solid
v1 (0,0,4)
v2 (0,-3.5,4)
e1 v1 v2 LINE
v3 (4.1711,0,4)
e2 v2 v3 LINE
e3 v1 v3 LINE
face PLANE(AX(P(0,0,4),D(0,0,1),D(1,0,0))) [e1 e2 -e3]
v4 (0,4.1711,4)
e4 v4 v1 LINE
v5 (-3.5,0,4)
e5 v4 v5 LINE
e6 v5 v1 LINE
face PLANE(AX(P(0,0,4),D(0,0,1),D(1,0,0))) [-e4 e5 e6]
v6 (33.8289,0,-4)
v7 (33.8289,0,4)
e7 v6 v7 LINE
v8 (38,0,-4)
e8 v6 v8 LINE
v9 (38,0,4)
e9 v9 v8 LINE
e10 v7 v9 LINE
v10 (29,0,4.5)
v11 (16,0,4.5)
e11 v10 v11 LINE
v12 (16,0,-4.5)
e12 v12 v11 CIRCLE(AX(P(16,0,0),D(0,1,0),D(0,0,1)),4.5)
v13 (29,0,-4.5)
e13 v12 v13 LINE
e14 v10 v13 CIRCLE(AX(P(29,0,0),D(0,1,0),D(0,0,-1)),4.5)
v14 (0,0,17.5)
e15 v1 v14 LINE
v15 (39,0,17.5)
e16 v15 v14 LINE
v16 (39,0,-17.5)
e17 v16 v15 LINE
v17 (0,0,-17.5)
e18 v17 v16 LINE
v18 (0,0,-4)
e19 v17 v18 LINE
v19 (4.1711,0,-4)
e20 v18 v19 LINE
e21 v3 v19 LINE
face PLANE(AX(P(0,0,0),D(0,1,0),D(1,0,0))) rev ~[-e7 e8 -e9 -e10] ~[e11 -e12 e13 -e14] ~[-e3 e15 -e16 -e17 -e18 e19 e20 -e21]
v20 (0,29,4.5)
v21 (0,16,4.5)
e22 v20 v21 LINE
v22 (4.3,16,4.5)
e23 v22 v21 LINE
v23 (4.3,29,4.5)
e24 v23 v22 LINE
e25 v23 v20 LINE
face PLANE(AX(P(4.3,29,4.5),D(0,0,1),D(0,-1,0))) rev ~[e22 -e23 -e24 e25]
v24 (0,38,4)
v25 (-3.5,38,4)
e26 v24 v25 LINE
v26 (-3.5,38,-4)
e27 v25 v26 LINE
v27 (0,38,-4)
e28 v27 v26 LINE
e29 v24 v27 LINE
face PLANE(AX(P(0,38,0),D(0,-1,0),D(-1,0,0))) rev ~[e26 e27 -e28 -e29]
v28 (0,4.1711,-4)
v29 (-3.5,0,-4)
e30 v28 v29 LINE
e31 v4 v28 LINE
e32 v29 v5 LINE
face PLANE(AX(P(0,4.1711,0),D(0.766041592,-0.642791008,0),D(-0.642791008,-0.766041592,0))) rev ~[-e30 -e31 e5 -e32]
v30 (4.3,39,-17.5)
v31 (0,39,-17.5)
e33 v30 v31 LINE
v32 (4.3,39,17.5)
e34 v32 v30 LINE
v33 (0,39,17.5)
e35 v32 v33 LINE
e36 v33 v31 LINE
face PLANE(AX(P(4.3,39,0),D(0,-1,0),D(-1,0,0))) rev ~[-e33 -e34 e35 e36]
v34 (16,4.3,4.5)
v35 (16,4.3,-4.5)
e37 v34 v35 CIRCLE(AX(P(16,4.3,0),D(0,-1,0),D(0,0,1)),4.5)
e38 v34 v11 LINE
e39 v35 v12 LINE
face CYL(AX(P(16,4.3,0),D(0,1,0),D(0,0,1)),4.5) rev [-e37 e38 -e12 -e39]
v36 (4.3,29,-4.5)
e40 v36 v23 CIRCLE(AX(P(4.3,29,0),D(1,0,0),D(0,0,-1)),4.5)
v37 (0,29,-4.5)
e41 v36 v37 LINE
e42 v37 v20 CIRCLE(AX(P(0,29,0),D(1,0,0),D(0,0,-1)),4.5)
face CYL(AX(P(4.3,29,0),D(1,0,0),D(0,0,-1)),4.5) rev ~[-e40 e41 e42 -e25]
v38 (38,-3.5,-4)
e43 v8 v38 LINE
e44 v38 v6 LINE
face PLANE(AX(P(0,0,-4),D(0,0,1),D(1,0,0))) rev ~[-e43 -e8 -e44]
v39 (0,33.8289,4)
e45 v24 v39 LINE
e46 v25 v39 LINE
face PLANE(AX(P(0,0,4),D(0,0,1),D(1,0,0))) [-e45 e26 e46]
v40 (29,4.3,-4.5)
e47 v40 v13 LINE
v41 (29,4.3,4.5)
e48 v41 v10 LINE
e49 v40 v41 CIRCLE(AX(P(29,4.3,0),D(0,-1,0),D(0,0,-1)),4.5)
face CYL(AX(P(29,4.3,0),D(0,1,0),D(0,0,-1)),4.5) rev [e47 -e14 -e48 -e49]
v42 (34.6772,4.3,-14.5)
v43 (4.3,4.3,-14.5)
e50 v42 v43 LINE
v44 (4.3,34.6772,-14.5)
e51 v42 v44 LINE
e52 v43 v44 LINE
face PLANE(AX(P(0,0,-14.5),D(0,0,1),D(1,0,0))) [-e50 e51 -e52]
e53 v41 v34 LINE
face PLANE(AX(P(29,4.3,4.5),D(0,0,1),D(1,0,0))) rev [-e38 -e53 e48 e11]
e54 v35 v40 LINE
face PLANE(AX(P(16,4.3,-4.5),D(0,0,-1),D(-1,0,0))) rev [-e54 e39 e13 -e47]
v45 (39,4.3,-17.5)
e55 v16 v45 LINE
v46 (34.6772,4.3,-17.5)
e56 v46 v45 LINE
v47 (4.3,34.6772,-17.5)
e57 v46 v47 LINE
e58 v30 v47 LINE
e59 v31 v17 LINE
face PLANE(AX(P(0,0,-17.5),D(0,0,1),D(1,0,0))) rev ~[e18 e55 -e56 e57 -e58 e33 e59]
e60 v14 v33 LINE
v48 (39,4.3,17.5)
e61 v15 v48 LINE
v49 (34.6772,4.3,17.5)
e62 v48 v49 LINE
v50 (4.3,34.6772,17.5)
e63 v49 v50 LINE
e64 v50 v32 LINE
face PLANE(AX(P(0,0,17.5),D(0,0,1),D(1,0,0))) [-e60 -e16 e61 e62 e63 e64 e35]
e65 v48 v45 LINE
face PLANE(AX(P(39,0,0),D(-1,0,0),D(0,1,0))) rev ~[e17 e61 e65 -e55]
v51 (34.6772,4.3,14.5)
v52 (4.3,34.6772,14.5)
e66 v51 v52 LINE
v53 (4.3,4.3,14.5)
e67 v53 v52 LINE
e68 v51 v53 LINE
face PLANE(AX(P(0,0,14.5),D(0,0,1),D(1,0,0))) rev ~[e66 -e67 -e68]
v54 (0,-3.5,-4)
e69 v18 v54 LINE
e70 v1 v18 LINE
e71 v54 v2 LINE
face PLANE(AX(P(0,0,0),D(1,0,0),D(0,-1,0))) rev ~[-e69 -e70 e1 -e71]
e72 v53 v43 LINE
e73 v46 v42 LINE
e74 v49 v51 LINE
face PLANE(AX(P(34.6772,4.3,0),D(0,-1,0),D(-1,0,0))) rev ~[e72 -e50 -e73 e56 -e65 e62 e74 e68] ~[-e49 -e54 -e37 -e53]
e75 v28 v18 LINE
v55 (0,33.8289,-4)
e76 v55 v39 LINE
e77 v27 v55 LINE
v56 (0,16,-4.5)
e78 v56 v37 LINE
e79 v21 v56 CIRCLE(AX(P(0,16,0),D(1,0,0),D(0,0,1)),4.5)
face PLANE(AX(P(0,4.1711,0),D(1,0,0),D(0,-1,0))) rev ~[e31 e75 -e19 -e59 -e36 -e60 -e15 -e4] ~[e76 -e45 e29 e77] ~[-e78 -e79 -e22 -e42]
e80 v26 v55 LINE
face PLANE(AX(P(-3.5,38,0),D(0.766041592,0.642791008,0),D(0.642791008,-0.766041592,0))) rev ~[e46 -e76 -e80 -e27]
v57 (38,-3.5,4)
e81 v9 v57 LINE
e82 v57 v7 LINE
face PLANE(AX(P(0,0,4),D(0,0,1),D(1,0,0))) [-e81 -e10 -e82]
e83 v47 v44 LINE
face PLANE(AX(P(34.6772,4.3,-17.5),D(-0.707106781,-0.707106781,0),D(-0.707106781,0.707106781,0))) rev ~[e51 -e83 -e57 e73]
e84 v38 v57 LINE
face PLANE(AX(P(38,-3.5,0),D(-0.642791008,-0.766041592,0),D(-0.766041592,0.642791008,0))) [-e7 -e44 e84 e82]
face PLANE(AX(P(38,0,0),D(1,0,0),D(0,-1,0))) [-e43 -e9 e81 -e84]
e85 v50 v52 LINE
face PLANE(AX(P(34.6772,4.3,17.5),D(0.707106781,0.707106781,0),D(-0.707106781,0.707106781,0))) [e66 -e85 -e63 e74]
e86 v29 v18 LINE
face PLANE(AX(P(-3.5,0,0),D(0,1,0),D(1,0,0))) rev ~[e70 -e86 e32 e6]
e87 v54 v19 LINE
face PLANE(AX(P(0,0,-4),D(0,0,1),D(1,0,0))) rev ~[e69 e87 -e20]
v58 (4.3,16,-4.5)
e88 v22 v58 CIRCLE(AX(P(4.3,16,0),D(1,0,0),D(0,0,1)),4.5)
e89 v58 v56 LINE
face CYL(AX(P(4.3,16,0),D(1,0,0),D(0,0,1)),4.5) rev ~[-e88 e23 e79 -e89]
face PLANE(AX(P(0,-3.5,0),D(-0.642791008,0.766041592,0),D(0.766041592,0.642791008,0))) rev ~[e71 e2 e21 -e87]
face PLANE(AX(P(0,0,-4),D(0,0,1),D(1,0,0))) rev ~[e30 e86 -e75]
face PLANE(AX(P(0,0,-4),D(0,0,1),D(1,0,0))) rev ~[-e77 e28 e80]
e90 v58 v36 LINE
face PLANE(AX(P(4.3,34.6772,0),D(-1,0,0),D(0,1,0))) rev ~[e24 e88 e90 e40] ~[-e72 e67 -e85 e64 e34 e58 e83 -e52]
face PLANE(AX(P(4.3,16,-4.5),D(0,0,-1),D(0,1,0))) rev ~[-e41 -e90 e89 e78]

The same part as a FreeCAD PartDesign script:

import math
import FreeCAD as App
import Part
import Sketcher
Q = App.Units.Quantity

doc = App.newDocument("Part")
body = doc.addObject("PartDesign::Body", "Body")

# Sketch on XY plane
sketch1 = body.newObject("Sketcher::SketchObject", "Sketch")
sketch1.AttachmentSupport = (doc.getObject("XY_Plane"), [""])
sketch1.MapMode = "FlatFace"
sketch1.addGeometry(Part.LineSegment(App.Vector(0, 39, 0), App.Vector(0, 0, 0)), False)
sketch1.addGeometry(Part.LineSegment(App.Vector(0, 0, 0), App.Vector(39, 0, 0)), False)
sketch1.addGeometry(Part.LineSegment(App.Vector(39, 0, 0), App.Vector(39, 4.3, 0)), False)
sketch1.addGeometry(Part.LineSegment(App.Vector(39, 4.3, 0), App.Vector(4.3, 4.3, 0)), False)
sketch1.addGeometry(Part.LineSegment(App.Vector(4.3, 4.3, 0), App.Vector(4.3, 39, 0)), False)
sketch1.addGeometry(Part.LineSegment(App.Vector(4.3, 39, 0), App.Vector(0, 39, 0)), False)
sketch1.addConstraint(Sketcher.Constraint("Coincident", 0, 2, 1, 1))
sketch1.addConstraint(Sketcher.Constraint("Coincident", 1, 2, 2, 1))
sketch1.addConstraint(Sketcher.Constraint("Coincident", 2, 2, 3, 1))
sketch1.addConstraint(Sketcher.Constraint("Coincident", 3, 2, 4, 1))
sketch1.addConstraint(Sketcher.Constraint("Coincident", 4, 2, 5, 1))
sketch1.addConstraint(Sketcher.Constraint("Coincident", 5, 2, 0, 1))
sketch1.addConstraint(Sketcher.Constraint("Vertical", 0))
sketch1.addConstraint(Sketcher.Constraint("Horizontal", 1))
sketch1.addConstraint(Sketcher.Constraint("Vertical", 2))
sketch1.addConstraint(Sketcher.Constraint("Horizontal", 3))
sketch1.addConstraint(Sketcher.Constraint("Vertical", 4))
sketch1.addConstraint(Sketcher.Constraint("Horizontal", 5))
sketch1.addConstraint(Sketcher.Constraint("Coincident", 0, 2, -1, 1))
sketch1.addConstraint(Sketcher.Constraint("Equal", 1, 0))
sketch1.addConstraint(Sketcher.Constraint("Equal", 5, 2))
sketch1.addConstraint(Sketcher.Constraint("DistanceX", 1, 1, 1, 2, Q("39 mm")))
sketch1.addConstraint(Sketcher.Constraint("DistanceX", 5, 2, 5, 1, Q("4.3 mm")))
pad1 = body.newObject("PartDesign::Pad", "Pad")
pad1.Profile = sketch1
pad1.Length = 35
pad1.Midplane = True

# Sketch on XY plane
sketch2 = body.newObject("Sketcher::SketchObject", "Sketch001")
sketch2.AttachmentSupport = (doc.getObject("XY_Plane"), [""])
sketch2.MapMode = "FlatFace"
sketch2.addGeometry(Part.LineSegment(App.Vector(0, 4.1711, 0), App.Vector(-3.5, 0, 0)), False)
sketch2.addGeometry(Part.LineSegment(App.Vector(-3.5, 0, 0), App.Vector(0, 0, 0)), False)
sketch2.addGeometry(Part.LineSegment(App.Vector(0, 0, 0), App.Vector(0, 4.1711, 0)), False)
sketch2.addGeometry(Part.LineSegment(App.Vector(4.1711, 0, 0), App.Vector(0, 0, 0)), False)
sketch2.addGeometry(Part.LineSegment(App.Vector(0, 0, 0), App.Vector(0, -3.5, 0)), False)
sketch2.addGeometry(Part.LineSegment(App.Vector(0, -3.5, 0), App.Vector(4.1711, 0, 0)), False)
sketch2.addGeometry(Part.LineSegment(App.Vector(-3.5, 38, 0), App.Vector(0, 33.8289, 0)), False)
sketch2.addGeometry(Part.LineSegment(App.Vector(0, 33.8289, 0), App.Vector(0, 38, 0)), False)
sketch2.addGeometry(Part.LineSegment(App.Vector(0, 38, 0), App.Vector(-3.5, 38, 0)), False)
sketch2.addGeometry(Part.LineSegment(App.Vector(38, 0, 0), App.Vector(33.8289, 0, 0)), False)
sketch2.addGeometry(Part.LineSegment(App.Vector(33.8289, 0, 0), App.Vector(38, -3.5, 0)), False)
sketch2.addGeometry(Part.LineSegment(App.Vector(38, -3.5, 0), App.Vector(38, 0, 0)), False)
sketch2.addConstraint(Sketcher.Constraint("Coincident", 0, 2, 1, 1))
sketch2.addConstraint(Sketcher.Constraint("Coincident", 1, 2, 2, 1))
sketch2.addConstraint(Sketcher.Constraint("Coincident", 2, 2, 0, 1))
sketch2.addConstraint(Sketcher.Constraint("Coincident", 3, 2, 4, 1))
sketch2.addConstraint(Sketcher.Constraint("Coincident", 4, 2, 5, 1))
sketch2.addConstraint(Sketcher.Constraint("Coincident", 5, 2, 3, 1))
sketch2.addConstraint(Sketcher.Constraint("Coincident", 6, 2, 7, 1))
sketch2.addConstraint(Sketcher.Constraint("Coincident", 7, 2, 8, 1))
sketch2.addConstraint(Sketcher.Constraint("Coincident", 8, 2, 6, 1))
sketch2.addConstraint(Sketcher.Constraint("Coincident", 9, 2, 10, 1))
sketch2.addConstraint(Sketcher.Constraint("Coincident", 10, 2, 11, 1))
sketch2.addConstraint(Sketcher.Constraint("Coincident", 11, 2, 9, 1))
sketch2.addConstraint(Sketcher.Constraint("Horizontal", 1))
sketch2.addConstraint(Sketcher.Constraint("Vertical", 2))
sketch2.addConstraint(Sketcher.Constraint("Horizontal", 3))
sketch2.addConstraint(Sketcher.Constraint("Vertical", 4))
sketch2.addConstraint(Sketcher.Constraint("Vertical", 7))
sketch2.addConstraint(Sketcher.Constraint("Horizontal", 8))
sketch2.addConstraint(Sketcher.Constraint("Horizontal", 9))
sketch2.addConstraint(Sketcher.Constraint("Vertical", 11))
sketch2.addConstraint(Sketcher.Constraint("Coincident", 1, 2, -1, 1))
sketch2.addConstraint(Sketcher.Constraint("Coincident", 3, 2, -1, 1))
sketch2.addConstraint(Sketcher.Constraint("PointOnObject", 6, 2, -2))
sketch2.addConstraint(Sketcher.Constraint("PointOnObject", 9, 2, -1))
sketch2.addConstraint(Sketcher.Constraint("Perpendicular", 5, 6))
sketch2.addConstraint(Sketcher.Constraint("Perpendicular", 0, 10))
sketch2.addConstraint(Sketcher.Constraint("Horizontal", 4, 2, 10, 2))
sketch2.addConstraint(Sketcher.Constraint("Vertical", 0, 2, 8, 2))
sketch2.addConstraint(Sketcher.Constraint("Equal", 3, 9))
sketch2.addConstraint(Sketcher.Constraint("Equal", 9, 2))
sketch2.addConstraint(Sketcher.Constraint("Angle", 5, Q("40.0003 deg")))
sketch2.addConstraint(Sketcher.Constraint("DistanceX", 1, 1, 1, 2, Q("3.5 mm")))
sketch2.addConstraint(Sketcher.Constraint("DistanceY", -1, 1, 7, 2, Q("38 mm")))
sketch2.addConstraint(Sketcher.Constraint("DistanceX", -1, 1, 10, 2, Q("38 mm")))
pad2 = body.newObject("PartDesign::Pad", "Pad001")
pad2.Profile = sketch2
pad2.Length = 8
pad2.Midplane = True

# Sketch on XY plane
sketch3 = body.newObject("Sketcher::SketchObject", "Sketch002")
sketch3.AttachmentSupport = (doc.getObject("XY_Plane"), [""])
sketch3.MapMode = "FlatFace"
sketch3.AttachmentOffset = App.Placement(App.Vector(0, 0, 17.5), App.Rotation())
sketch3.addGeometry(Part.LineSegment(App.Vector(34.6772, 4.3, 0), App.Vector(4.3, 34.6772, 0)), False)
sketch3.addGeometry(Part.LineSegment(App.Vector(4.3, 34.6772, 0), App.Vector(4.3, 4.3, 0)), False)
sketch3.addGeometry(Part.LineSegment(App.Vector(4.3, 4.3, 0), App.Vector(34.6772, 4.3, 0)), False)
sketch3.addConstraint(Sketcher.Constraint("Coincident", 0, 2, 1, 1))
sketch3.addConstraint(Sketcher.Constraint("Coincident", 1, 2, 2, 1))
sketch3.addConstraint(Sketcher.Constraint("Coincident", 2, 2, 0, 1))
sketch3.addConstraint(Sketcher.Constraint("Vertical", 1))
sketch3.addConstraint(Sketcher.Constraint("Horizontal", 2))
sketch3.addConstraint(Sketcher.Constraint("Equal", 2, 1))
sketch3.addConstraint(Sketcher.Constraint("DistanceX", -1, 1, 0, 2, Q("4.3 mm")))
sketch3.addConstraint(Sketcher.Constraint("DistanceY", -1, 1, 1, 2, Q("4.3 mm")))
sketch3.addConstraint(Sketcher.Constraint("DistanceX", 2, 1, 2, 2, Q("30.3772 mm")))
pad3 = body.newObject("PartDesign::Pad", "Pad002")
pad3.Profile = sketch3
pad3.Length = 3
pad3.Reversed = True

# Sketch on XY plane
sketch4 = body.newObject("Sketcher::SketchObject", "Sketch003")
sketch4.AttachmentSupport = (doc.getObject("XY_Plane"), [""])
sketch4.MapMode = "FlatFace"
sketch4.AttachmentOffset = App.Placement(App.Vector(0, 0, -17.5), App.Rotation())
sketch4.addGeometry(Part.LineSegment(App.Vector(34.6772, 4.3, 0), App.Vector(4.3, 34.6772, 0)), False)
sketch4.addGeometry(Part.LineSegment(App.Vector(4.3, 34.6772, 0), App.Vector(4.3, 4.3, 0)), False)
sketch4.addGeometry(Part.LineSegment(App.Vector(4.3, 4.3, 0), App.Vector(34.6772, 4.3, 0)), False)
sketch4.addConstraint(Sketcher.Constraint("Coincident", 0, 2, 1, 1))
sketch4.addConstraint(Sketcher.Constraint("Coincident", 1, 2, 2, 1))
sketch4.addConstraint(Sketcher.Constraint("Coincident", 2, 2, 0, 1))
sketch4.addConstraint(Sketcher.Constraint("Vertical", 1))
sketch4.addConstraint(Sketcher.Constraint("Horizontal", 2))
sketch4.addConstraint(Sketcher.Constraint("Equal", 2, 1))
sketch4.addConstraint(Sketcher.Constraint("DistanceX", -1, 1, 0, 2, Q("4.3 mm")))
sketch4.addConstraint(Sketcher.Constraint("DistanceY", -1, 1, 1, 2, Q("4.3 mm")))
sketch4.addConstraint(Sketcher.Constraint("DistanceX", 2, 1, 2, 2, Q("30.3772 mm")))
pad4 = body.newObject("PartDesign::Pad", "Pad003")
pad4.Profile = sketch4
pad4.Length = 3

# Sketch on YZ plane
sketch5 = body.newObject("Sketcher::SketchObject", "Sketch004")
sketch5.AttachmentSupport = (doc.getObject("YZ_Plane"), [""])
sketch5.MapMode = "FlatFace"
sketch5.AttachmentOffset = App.Placement(App.Vector(0, 0, 4.3), App.Rotation())
sketch5.addGeometry(Part.ArcOfCircle(Part.Circle(App.Vector(16, 0, 0), App.Vector(0, 0, 1), 4.5), math.radians(90), math.radians(270)), False)
sketch5.addGeometry(Part.LineSegment(App.Vector(16, -4.5, 0), App.Vector(29, -4.5, 0)), False)
sketch5.addGeometry(Part.ArcOfCircle(Part.Circle(App.Vector(29, 0, 0), App.Vector(0, 0, 1), 4.5), math.radians(-90), math.radians(90)), False)
sketch5.addGeometry(Part.LineSegment(App.Vector(29, 4.5, 0), App.Vector(16, 4.5, 0)), False)
sketch5.addConstraint(Sketcher.Constraint("Tangent", 0, 2, 1, 1))
sketch5.addConstraint(Sketcher.Constraint("Tangent", 1, 2, 2, 1))
sketch5.addConstraint(Sketcher.Constraint("Tangent", 2, 2, 3, 1))
sketch5.addConstraint(Sketcher.Constraint("Tangent", 3, 2, 0, 1))
sketch5.addConstraint(Sketcher.Constraint("Horizontal", 1))
sketch5.addConstraint(Sketcher.Constraint("Horizontal", 3))
sketch5.addConstraint(Sketcher.Constraint("PointOnObject", 0, 3, -1))
sketch5.addConstraint(Sketcher.Constraint("Radius", 0, Q("4.5 mm")))
sketch5.addConstraint(Sketcher.Constraint("DistanceX", 1, 1, 1, 2, Q("13 mm")))
sketch5.addConstraint(Sketcher.Constraint("DistanceX", -1, 1, 0, 3, Q("16 mm")))
pocket1 = body.newObject("PartDesign::Pocket", "Pocket")
pocket1.Profile = sketch5
pocket1.Length = 5
doc.recompute()

datumplane = body.newObject("PartDesign::Plane", "DatumPlane")
datumplane.Placement = App.Placement(App.Vector(0, 0, 0), App.Rotation(App.Vector(-0.707106781, -0.707106781, 0), App.Vector(0, 0, -1), App.Vector(0.707106781, -0.707106781, 0), "ZXY"))
mirrored = body.newObject("PartDesign::Mirrored", "Mirrored")
mirrored.Originals = [pocket1]
mirrored.MirrorPlane = (datumplane, [""])
body.Tip = mirrored

doc.recompute()
